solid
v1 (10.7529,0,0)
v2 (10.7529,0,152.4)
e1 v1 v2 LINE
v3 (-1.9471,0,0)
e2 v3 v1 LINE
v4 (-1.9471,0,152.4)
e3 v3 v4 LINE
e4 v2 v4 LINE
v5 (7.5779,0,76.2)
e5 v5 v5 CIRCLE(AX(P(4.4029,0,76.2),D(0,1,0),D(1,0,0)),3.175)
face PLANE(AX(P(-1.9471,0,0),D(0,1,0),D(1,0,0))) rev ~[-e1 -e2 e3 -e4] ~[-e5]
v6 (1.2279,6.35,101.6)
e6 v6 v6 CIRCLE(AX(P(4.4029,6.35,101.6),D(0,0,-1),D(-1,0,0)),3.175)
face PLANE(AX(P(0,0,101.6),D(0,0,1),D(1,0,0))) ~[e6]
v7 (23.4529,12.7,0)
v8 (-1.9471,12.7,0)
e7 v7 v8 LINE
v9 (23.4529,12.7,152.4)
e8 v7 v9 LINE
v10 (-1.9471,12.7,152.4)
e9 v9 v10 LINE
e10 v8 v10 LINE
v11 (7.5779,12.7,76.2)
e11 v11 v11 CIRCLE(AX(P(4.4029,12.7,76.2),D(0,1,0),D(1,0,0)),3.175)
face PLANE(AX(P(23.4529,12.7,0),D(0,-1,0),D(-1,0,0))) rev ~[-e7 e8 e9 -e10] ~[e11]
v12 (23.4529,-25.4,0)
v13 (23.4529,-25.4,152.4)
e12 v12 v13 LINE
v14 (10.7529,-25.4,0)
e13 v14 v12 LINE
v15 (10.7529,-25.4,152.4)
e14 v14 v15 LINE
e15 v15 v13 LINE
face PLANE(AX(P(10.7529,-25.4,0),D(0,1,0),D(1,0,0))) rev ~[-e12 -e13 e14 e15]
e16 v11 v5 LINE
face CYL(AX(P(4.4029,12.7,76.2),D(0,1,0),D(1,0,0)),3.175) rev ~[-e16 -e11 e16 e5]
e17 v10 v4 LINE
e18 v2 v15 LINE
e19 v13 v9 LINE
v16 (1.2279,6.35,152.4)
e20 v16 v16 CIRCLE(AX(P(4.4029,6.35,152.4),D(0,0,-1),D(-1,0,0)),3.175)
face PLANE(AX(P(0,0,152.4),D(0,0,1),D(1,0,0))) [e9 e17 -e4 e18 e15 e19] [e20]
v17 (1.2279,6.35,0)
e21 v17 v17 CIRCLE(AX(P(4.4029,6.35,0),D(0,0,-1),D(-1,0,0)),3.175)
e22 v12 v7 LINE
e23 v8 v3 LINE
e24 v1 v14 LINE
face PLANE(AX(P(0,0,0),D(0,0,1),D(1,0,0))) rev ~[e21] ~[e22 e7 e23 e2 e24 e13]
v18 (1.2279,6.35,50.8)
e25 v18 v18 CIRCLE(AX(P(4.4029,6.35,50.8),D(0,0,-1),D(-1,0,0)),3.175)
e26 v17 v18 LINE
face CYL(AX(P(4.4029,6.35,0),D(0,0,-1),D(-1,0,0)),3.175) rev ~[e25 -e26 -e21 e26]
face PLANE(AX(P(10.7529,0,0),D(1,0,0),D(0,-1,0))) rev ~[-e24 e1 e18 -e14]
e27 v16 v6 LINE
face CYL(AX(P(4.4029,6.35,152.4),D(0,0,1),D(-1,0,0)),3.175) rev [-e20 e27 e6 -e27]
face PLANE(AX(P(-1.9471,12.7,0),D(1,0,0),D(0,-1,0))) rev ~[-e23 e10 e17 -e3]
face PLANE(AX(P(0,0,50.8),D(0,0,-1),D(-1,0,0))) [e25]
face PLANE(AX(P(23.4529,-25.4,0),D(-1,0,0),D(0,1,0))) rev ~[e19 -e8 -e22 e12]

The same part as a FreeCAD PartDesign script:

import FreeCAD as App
import Part
import Sketcher
Q = App.Units.Quantity


def add_polygon(sketch, points):
    """Adds a closed chain of lines whose ends are joined by coincident constraints."""
    first, n = sketch.GeometryCount, len(points)
    for a, b in zip(points, points[1:] + points[:1]):
        sketch.addGeometry(Part.LineSegment(App.Vector(*a, 0), App.Vector(*b, 0)), False)
    for i in range(n):
        sketch.addConstraint(Sketcher.Constraint("Coincident", first + i, 2, first + (i + 1) % n, 1))

doc = App.newDocument("Part")
body = doc.addObject("PartDesign::Body", "Body")

# Sketch on XY plane
sketch1 = body.newObject("Sketcher::SketchObject", "Sketch")
sketch1.AttachmentSupport = (doc.getObject("XY_Plane"), [""])
sketch1.MapMode = "FlatFace"
add_polygon(sketch1, [(-1.9471, 0), (10.7529, 0), (10.7529, -25.4), (23.4529, -25.4), (23.4529, 12.7), (-1.9471, 12.7)])  # lines 0-5
sketch1.addConstraint(Sketcher.Constraint("Horizontal", 0))
sketch1.addConstraint(Sketcher.Constraint("Vertical", 1))
sketch1.addConstraint(Sketcher.Constraint("Horizontal", 2))
sketch1.addConstraint(Sketcher.Constraint("Vertical", 3))
sketch1.addConstraint(Sketcher.Constraint("Horizontal", 4))
sketch1.addConstraint(Sketcher.Constraint("Vertical", 5))
sketch1.addConstraint(Sketcher.Constraint("PointOnObject", 0, 2, -1))
sketch1.addConstraint(Sketcher.Constraint("Equal", 0, 2))
sketch1.addConstraint(Sketcher.Constraint("Equal", 4, 1))
sketch1.addConstraint(Sketcher.Constraint("Equal", 2, 5))
sketch1.addConstraint(Sketcher.Constraint("DistanceX", 4, 2, 4, 1, Q("1 in")))
sketch1.addConstraint(Sketcher.Constraint("DistanceX", -1, 1, 0, 2, 10.753))
pad1 = body.newObject("PartDesign::Pad", "Pad")
pad1.Profile = sketch1
pad1.Length = Q("6 in")

# Sketch on XZ plane
sketch2 = body.newObject("Sketcher::SketchObject", "Sketch001")
sketch2.AttachmentSupport = (doc.getObject("XZ_Plane"), [""])
sketch2.MapMode = "FlatFace"
sketch2.AttachmentOffset = App.Placement(App.Vector(0, 0, -0.5 * 25.4), App.Rotation())
sketch2.addGeometry(Part.Circle(App.Vector(4.4029, 76.2, 0), App.Vector(0, 0, 1), 3.175), False)
sketch2.addConstraint(Sketcher.Constraint("Diameter", 0, Q("0.25 in")))
sketch2.addConstraint(Sketcher.Constraint("DistanceY", -1, 1, 0, 3, Q("3 in")))
sketch2.addConstraint(Sketcher.Constraint("DistanceX", -1, 1, 0, 3, 4.403))
pocket1 = body.newObject("PartDesign::Pocket", "Pocket")
pocket1.Profile = sketch2
pocket1.Length = Q("0.5 in")
pocket1.Reversed = True

# Sketch on XY plane
sketch3 = body.newObject("Sketcher::SketchObject", "Sketch002")
sketch3.AttachmentSupport = (doc.getObject("XY_Plane"), [""])
sketch3.MapMode = "FlatFace"
sketch3.addGeometry(Part.Circle(App.Vector(4.4029, 6.35, 0), App.Vector(0, 0, 1), 3.175), False)
sketch3.addConstraint(Sketcher.Constraint("Diameter", 0, Q("0.25 in")))
sketch3.addConstraint(Sketcher.Constraint("DistanceY", -1, 1, 0, 3, Q("0.25 in")))
sketch3.addConstraint(Sketcher.Constraint("DistanceX", -1, 1, 0, 3, 4.403))
pocket2 = body.newObject("PartDesign::Pocket", "Pocket001")
pocket2.Profile = sketch3
pocket2.Length = Q("2 in")
pocket2.Reversed = True
doc.recompute()

datumplane = body.newObject("PartDesign::Plane", "DatumPlane")
datumplane.AttachmentSupport = (doc.getObject("XY_Plane"), [""])
datumplane.MapMode = "FlatFace"
datumplane.AttachmentOffset = App.Placement(App.Vector(0, 0, 3 * 25.4), App.Rotation())
mirrored = body.newObject("PartDesign::Mirrored", "Mirrored")
mirrored.Originals = [pocket2]
mirrored.MirrorPlane = (datumplane, [""])
body.Tip = mirrored

doc.recompute()
